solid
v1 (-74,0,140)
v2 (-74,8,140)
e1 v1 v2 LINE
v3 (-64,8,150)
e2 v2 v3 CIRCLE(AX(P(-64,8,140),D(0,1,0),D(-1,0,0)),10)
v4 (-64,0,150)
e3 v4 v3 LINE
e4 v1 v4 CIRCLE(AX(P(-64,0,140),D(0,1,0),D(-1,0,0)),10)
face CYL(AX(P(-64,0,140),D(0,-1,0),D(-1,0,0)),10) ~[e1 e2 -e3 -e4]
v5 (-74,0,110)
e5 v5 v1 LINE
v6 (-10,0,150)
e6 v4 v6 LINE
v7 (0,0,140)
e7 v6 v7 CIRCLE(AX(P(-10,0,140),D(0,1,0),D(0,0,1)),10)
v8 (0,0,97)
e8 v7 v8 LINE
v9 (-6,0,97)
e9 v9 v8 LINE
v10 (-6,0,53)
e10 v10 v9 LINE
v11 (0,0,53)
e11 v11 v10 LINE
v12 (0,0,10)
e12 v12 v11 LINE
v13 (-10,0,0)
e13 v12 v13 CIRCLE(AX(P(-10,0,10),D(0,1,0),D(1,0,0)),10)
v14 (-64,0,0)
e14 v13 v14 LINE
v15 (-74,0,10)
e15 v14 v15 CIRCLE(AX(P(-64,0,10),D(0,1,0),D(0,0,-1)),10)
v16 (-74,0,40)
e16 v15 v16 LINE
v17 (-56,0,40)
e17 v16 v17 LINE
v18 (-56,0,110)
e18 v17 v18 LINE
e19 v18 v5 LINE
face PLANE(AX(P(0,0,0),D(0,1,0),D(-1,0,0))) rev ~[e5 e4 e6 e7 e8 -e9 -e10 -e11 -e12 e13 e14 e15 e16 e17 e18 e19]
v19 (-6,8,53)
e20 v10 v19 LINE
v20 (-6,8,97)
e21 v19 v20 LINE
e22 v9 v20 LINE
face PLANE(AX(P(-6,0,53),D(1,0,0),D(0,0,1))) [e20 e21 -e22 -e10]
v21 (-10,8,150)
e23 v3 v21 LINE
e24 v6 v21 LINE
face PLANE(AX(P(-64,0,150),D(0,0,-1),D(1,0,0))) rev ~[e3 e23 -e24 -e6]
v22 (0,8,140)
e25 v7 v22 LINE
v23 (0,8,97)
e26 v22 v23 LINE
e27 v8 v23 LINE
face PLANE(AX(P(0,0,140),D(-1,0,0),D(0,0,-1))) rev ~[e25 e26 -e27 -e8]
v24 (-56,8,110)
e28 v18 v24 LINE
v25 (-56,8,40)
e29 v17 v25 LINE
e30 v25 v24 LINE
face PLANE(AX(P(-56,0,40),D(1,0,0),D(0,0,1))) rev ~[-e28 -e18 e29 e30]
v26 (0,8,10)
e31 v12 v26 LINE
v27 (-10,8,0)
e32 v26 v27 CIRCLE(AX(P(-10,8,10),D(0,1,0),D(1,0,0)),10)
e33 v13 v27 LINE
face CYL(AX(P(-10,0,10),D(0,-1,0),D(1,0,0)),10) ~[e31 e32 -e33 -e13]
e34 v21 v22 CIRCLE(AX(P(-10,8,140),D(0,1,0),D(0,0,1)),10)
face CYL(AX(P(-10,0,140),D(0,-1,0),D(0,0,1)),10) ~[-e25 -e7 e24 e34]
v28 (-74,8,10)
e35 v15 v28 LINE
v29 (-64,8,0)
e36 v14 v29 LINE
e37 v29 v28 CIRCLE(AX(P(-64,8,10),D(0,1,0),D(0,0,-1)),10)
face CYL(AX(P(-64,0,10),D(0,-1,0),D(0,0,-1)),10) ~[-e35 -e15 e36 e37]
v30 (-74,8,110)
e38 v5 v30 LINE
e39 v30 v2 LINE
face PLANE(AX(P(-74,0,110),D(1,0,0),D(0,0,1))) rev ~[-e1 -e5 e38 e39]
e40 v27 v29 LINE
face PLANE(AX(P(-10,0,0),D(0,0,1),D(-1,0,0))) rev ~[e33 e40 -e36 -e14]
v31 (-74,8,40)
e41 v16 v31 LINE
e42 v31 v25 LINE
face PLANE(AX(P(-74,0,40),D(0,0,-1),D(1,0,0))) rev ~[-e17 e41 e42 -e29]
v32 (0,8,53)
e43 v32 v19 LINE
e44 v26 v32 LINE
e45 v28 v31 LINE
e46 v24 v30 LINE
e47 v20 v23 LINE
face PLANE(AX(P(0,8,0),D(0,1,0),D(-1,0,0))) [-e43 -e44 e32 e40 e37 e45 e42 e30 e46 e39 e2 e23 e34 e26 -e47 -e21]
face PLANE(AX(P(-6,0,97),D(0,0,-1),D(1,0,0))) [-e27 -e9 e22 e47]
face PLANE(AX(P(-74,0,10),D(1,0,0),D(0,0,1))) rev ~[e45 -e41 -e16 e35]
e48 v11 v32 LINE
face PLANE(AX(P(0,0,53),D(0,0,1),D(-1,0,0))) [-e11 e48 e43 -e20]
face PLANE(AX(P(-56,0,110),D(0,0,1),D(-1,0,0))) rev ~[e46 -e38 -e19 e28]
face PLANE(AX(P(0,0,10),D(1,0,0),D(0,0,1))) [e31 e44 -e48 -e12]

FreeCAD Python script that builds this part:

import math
import FreeCAD as App
import Part
import Sketcher

doc = App.newDocument("Part")
body = doc.addObject("PartDesign::Body", "Body")

# Sketch on XZ plane
sketch1 = body.newObject("Sketcher::SketchObject", "Sketch")
sketch1.AttachmentSupport = (doc.getObject("XZ_Plane"), [""])
sketch1.MapMode = "FlatFace"
sketch1.addGeometry(Part.ArcOfCircle(Part.Circle(App.Vector(-10, 10, 0), App.Vector(0, 0, 1), 10), math.radians(-90), math.radians(0)), False)
sketch1.addGeometry(Part.LineSegment(App.Vector(-10, 0, 0), App.Vector(-64, 0, 0)), False)
sketch1.addGeometry(Part.ArcOfCircle(Part.Circle(App.Vector(-64, 10, 0), App.Vector(0, 0, 1), 10), math.radians(180), math.radians(270)), False)
sketch1.addGeometry(Part.LineSegment(App.Vector(-74, 10, 0), App.Vector(-74, 40, 0)), False)
sketch1.addGeometry(Part.LineSegment(App.Vector(-74, 40, 0), App.Vector(-56, 40, 0)), False)
sketch1.addGeometry(Part.LineSegment(App.Vector(-56, 40, 0), App.Vector(-56, 110, 0)), False)
sketch1.addGeometry(Part.LineSegment(App.Vector(-56, 110, 0), App.Vector(-74, 110, 0)), False)
sketch1.addGeometry(Part.LineSegment(App.Vector(-74, 110, 0), App.Vector(-74, 140, 0)), False)
sketch1.addGeometry(Part.ArcOfCircle(Part.Circle(App.Vector(-64, 140, 0), App.Vector(0, 0, 1), 10), math.radians(90), math.radians(180)), False)
sketch1.addGeometry(Part.LineSegment(App.Vector(-64, 150, 0), App.Vector(-10, 150, 0)), False)
sketch1.addGeometry(Part.ArcOfCircle(Part.Circle(App.Vector(-10, 140, 0), App.Vector(0, 0, 1), 10), math.radians(0), math.radians(90)), False)
sketch1.addGeometry(Part.LineSegment(App.Vector(0, 140, 0), App.Vector(0, 97, 0)), False)
sketch1.addGeometry(Part.LineSegment(App.Vector(0, 97, 0), App.Vector(-6, 97, 0)), False)
sketch1.addGeometry(Part.LineSegment(App.Vector(-6, 97, 0), App.Vector(-6, 53, 0)), False)
sketch1.addGeometry(Part.LineSegment(App.Vector(-6, 53, 0), App.Vector(0, 53, 0)), False)
sketch1.addGeometry(Part.LineSegment(App.Vector(0, 53, 0), App.Vector(0, 10, 0)), False)
sketch1.addConstraint(Sketcher.Constraint("Tangent", 0, 1, 1, 1))
sketch1.addConstraint(Sketcher.Constraint("Tangent", 1, 2, 2, 2))
sketch1.addConstraint(Sketcher.Constraint("Tangent", 2, 1, 3, 1))
sketch1.addConstraint(Sketcher.Constraint("Coincident", 3, 2, 4, 1))
sketch1.addConstraint(Sketcher.Constraint("Coincident", 4, 2, 5, 1))
sketch1.addConstraint(Sketcher.Constraint("Coincident", 5, 2, 6, 1))
sketch1.addConstraint(Sketcher.Constraint("Coincident", 6, 2, 7, 1))
sketch1.addConstraint(Sketcher.Constraint("Tangent", 7, 2, 8, 2))
sketch1.addConstraint(Sketcher.Constraint("Tangent", 8, 1, 9, 1))
sketch1.addConstraint(Sketcher.Constraint("Tangent", 9, 2, 10, 2))
sketch1.addConstraint(Sketcher.Constraint("Tangent", 10, 1, 11, 1))
sketch1.addConstraint(Sketcher.Constraint("Coincident", 11, 2, 12, 1))
sketch1.addConstraint(Sketcher.Constraint("Coincident", 12, 2, 13, 1))
sketch1.addConstraint(Sketcher.Constraint("Coincident", 13, 2, 14, 1))
sketch1.addConstraint(Sketcher.Constraint("Coincident", 14, 2, 15, 1))
sketch1.addConstraint(Sketcher.Constraint("Tangent", 15, 2, 0, 2))
sketch1.addConstraint(Sketcher.Constraint("Horizontal", 1))
sketch1.addConstraint(Sketcher.Constraint("Vertical", 3))
sketch1.addConstraint(Sketcher.Constraint("Horizontal", 4))
sketch1.addConstraint(Sketcher.Constraint("Vertical", 5))
sketch1.addConstraint(Sketcher.Constraint("Horizontal", 6))
sketch1.addConstraint(Sketcher.Constraint("Vertical", 7))
sketch1.addConstraint(Sketcher.Constraint("Horizontal", 9))
sketch1.addConstraint(Sketcher.Constraint("Vertical", 11))
sketch1.addConstraint(Sketcher.Constraint("Horizontal", 12))
sketch1.addConstraint(Sketcher.Constraint("Vertical", 13))
sketch1.addConstraint(Sketcher.Constraint("Horizontal", 14))
sketch1.addConstraint(Sketcher.Constraint("Vertical", 15))
sketch1.addConstraint(Sketcher.Constraint("Equal", 0, 2))
sketch1.addConstraint(Sketcher.Constraint("Equal", 2, 8))
sketch1.addConstraint(Sketcher.Constraint("Equal", 8, 10))
sketch1.addConstraint(Sketcher.Constraint("PointOnObject", 0, 1, -1))
sketch1.addConstraint(Sketcher.Constraint("PointOnObject", 10, 1, -2))
sketch1.addConstraint(Sketcher.Constraint("PointOnObject", 14, 2, -2))
sketch1.addConstraint(Sketcher.Constraint("Vertical", 2, 3, 8, 3))
sketch1.addConstraint(Sketcher.Constraint("Equal", 3, 7))
sketch1.addConstraint(Sketcher.Constraint("Equal", 11, 15))
sketch1.addConstraint(Sketcher.Constraint("Radius", 0, 10.0))
sketch1.addConstraint(Sketcher.Constraint("DistanceX", 4, 1, 4, 2, 18.0))
sketch1.addConstraint(Sketcher.Constraint("DistanceX", 12, 2, 12, 1, 6.0))
sketch1.addConstraint(Sketcher.Constraint("DistanceY", 5, 1, 5, 2, 70.0))
sketch1.addConstraint(Sketcher.Constraint("DistanceY", 13, 2, 13, 1, 44.0))
sketch1.addConstraint(Sketcher.Constraint("DistanceX", 2, 1, -1, 1, 74.0))
sketch1.addConstraint(Sketcher.Constraint("DistanceY", -1, 1, 3, 2, 40.0))
pad1 = body.newObject("PartDesign::Pad", "Pad")
pad1.Profile = sketch1
pad1.Length = 8
pad1.Reversed = True

doc.recompute()
